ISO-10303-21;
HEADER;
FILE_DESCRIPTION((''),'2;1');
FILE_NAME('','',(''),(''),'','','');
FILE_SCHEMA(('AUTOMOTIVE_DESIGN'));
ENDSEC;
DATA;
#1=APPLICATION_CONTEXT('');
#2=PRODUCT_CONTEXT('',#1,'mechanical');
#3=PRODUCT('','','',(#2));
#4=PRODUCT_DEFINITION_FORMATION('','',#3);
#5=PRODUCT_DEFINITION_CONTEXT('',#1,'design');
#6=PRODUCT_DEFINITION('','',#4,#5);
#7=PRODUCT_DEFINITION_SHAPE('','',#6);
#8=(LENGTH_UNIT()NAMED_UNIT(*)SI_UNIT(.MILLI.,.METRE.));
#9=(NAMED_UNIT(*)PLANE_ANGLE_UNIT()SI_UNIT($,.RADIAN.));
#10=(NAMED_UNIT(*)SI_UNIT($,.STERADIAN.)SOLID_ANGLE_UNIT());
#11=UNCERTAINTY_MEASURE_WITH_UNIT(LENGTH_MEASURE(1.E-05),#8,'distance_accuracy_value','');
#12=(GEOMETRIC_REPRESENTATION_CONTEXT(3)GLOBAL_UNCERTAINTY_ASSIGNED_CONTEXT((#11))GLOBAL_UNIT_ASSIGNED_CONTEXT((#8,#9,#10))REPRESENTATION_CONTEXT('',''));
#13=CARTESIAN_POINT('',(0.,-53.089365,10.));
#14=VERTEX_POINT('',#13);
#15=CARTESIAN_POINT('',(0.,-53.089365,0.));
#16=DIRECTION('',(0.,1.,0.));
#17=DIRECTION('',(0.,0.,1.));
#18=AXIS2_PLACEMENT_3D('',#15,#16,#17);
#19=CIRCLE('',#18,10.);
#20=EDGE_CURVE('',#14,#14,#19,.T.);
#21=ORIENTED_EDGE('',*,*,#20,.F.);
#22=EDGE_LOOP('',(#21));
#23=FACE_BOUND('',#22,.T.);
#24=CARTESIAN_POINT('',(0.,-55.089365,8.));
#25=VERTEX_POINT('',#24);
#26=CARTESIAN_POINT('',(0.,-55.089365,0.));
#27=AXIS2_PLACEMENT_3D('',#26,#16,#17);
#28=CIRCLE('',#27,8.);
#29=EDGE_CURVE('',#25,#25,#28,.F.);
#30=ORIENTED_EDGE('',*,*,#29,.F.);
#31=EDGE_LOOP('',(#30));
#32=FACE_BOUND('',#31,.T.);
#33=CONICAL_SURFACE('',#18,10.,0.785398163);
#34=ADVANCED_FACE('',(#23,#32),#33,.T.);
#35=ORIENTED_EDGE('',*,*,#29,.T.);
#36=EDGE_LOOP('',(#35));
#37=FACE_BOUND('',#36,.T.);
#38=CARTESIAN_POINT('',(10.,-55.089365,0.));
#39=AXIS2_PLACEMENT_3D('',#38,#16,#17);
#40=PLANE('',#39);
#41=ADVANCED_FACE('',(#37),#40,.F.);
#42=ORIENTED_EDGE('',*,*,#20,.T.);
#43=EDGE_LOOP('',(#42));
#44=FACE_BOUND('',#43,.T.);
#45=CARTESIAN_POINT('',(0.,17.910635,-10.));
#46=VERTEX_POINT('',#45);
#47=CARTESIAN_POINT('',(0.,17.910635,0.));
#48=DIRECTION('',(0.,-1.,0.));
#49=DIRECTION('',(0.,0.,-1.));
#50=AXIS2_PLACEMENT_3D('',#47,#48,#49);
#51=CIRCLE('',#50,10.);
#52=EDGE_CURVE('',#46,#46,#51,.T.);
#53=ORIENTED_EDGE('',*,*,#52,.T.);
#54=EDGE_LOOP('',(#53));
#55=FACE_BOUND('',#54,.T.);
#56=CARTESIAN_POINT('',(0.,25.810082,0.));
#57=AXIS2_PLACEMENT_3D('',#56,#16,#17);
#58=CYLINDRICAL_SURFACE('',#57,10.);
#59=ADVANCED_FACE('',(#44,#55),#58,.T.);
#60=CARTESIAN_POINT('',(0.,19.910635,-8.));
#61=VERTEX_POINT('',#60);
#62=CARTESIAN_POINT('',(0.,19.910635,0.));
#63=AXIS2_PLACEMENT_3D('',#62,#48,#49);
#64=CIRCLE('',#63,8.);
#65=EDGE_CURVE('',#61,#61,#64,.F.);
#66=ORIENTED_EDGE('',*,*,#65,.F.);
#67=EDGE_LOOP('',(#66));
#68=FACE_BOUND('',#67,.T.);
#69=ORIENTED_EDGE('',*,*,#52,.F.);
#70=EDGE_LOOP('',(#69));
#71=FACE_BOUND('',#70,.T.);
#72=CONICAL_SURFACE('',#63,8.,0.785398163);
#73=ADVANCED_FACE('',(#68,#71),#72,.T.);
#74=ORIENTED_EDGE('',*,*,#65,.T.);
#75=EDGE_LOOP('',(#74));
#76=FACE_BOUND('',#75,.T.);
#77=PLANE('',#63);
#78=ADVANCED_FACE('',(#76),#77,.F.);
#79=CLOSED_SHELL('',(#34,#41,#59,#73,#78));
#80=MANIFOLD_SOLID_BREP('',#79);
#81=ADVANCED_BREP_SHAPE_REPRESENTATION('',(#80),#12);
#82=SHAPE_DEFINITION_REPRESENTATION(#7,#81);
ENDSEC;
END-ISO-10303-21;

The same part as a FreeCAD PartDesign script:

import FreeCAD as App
import Part
import Sketcher

V = App.Vector


def edges_at(feature, points):
    """Names of the edges that pass closest to the given points."""
    edges = feature.Shape.Edges
    near = lambda p: min(range(len(edges)), key=lambda i: edges[i].distToShape(Part.Vertex(*p))[0])
    return sorted({f"Edge{near(p) + 1}" for p in points})


def add_polygon(sketch, points):
    """Adds a closed chain of lines whose ends are joined by coincident constraints."""
    first, n = sketch.GeometryCount, len(points)
    for a, b in zip(points, points[1:] + points[:1]):
        sketch.addGeometry(Part.LineSegment(App.Vector(*a, 0), App.Vector(*b, 0)), False)
    for i in range(n):
        sketch.addConstraint(Sketcher.Constraint("Coincident", first + i, 2, first + (i + 1) % n, 1))

doc = App.newDocument("Part")
body = doc.addObject("PartDesign::Body", "Body")

# Sketch on XY plane
sketch1 = body.newObject("Sketcher::SketchObject", "Sketch")
sketch1.AttachmentSupport = (doc.getObject("XY_Plane"), [""])
sketch1.MapMode = "FlatFace"
add_polygon(sketch1, [(0, 19.910635), (0, -55.089365), (10, -55.089365), (10, 19.910635)])  # lines 0-3
sketch1.addConstraint(Sketcher.Constraint("Vertical", 0))
sketch1.addConstraint(Sketcher.Constraint("Horizontal", 1))
sketch1.addConstraint(Sketcher.Constraint("Vertical", 2))
sketch1.addConstraint(Sketcher.Constraint("Horizontal", 3))
sketch1.addConstraint(Sketcher.Constraint("PointOnObject", 0, 2, -2))
sketch1.addConstraint(Sketcher.Constraint("DistanceX", 1, 1, 1, 2, 10.0))
sketch1.addConstraint(Sketcher.Constraint("DistanceY", 0, 2, 0, 1, 75.0))
sketch1.addConstraint(Sketcher.Constraint("DistanceY", 0, 2, -1, 1, 55.089365))
revolution = body.newObject("PartDesign::Revolution", "Revolution")
revolution.Profile = sketch1
revolution.ReferenceAxis = (sketch1, ["V_Axis"])
revolution.Angle = 360
doc.recompute()

chamfer = body.newObject("PartDesign::Chamfer", "Chamfer")
chamfer.Base = (revolution, edges_at(revolution, [(0, -55.089, -10), (0, 19.911, -10)]))
chamfer.Size = 2

doc.recompute()
